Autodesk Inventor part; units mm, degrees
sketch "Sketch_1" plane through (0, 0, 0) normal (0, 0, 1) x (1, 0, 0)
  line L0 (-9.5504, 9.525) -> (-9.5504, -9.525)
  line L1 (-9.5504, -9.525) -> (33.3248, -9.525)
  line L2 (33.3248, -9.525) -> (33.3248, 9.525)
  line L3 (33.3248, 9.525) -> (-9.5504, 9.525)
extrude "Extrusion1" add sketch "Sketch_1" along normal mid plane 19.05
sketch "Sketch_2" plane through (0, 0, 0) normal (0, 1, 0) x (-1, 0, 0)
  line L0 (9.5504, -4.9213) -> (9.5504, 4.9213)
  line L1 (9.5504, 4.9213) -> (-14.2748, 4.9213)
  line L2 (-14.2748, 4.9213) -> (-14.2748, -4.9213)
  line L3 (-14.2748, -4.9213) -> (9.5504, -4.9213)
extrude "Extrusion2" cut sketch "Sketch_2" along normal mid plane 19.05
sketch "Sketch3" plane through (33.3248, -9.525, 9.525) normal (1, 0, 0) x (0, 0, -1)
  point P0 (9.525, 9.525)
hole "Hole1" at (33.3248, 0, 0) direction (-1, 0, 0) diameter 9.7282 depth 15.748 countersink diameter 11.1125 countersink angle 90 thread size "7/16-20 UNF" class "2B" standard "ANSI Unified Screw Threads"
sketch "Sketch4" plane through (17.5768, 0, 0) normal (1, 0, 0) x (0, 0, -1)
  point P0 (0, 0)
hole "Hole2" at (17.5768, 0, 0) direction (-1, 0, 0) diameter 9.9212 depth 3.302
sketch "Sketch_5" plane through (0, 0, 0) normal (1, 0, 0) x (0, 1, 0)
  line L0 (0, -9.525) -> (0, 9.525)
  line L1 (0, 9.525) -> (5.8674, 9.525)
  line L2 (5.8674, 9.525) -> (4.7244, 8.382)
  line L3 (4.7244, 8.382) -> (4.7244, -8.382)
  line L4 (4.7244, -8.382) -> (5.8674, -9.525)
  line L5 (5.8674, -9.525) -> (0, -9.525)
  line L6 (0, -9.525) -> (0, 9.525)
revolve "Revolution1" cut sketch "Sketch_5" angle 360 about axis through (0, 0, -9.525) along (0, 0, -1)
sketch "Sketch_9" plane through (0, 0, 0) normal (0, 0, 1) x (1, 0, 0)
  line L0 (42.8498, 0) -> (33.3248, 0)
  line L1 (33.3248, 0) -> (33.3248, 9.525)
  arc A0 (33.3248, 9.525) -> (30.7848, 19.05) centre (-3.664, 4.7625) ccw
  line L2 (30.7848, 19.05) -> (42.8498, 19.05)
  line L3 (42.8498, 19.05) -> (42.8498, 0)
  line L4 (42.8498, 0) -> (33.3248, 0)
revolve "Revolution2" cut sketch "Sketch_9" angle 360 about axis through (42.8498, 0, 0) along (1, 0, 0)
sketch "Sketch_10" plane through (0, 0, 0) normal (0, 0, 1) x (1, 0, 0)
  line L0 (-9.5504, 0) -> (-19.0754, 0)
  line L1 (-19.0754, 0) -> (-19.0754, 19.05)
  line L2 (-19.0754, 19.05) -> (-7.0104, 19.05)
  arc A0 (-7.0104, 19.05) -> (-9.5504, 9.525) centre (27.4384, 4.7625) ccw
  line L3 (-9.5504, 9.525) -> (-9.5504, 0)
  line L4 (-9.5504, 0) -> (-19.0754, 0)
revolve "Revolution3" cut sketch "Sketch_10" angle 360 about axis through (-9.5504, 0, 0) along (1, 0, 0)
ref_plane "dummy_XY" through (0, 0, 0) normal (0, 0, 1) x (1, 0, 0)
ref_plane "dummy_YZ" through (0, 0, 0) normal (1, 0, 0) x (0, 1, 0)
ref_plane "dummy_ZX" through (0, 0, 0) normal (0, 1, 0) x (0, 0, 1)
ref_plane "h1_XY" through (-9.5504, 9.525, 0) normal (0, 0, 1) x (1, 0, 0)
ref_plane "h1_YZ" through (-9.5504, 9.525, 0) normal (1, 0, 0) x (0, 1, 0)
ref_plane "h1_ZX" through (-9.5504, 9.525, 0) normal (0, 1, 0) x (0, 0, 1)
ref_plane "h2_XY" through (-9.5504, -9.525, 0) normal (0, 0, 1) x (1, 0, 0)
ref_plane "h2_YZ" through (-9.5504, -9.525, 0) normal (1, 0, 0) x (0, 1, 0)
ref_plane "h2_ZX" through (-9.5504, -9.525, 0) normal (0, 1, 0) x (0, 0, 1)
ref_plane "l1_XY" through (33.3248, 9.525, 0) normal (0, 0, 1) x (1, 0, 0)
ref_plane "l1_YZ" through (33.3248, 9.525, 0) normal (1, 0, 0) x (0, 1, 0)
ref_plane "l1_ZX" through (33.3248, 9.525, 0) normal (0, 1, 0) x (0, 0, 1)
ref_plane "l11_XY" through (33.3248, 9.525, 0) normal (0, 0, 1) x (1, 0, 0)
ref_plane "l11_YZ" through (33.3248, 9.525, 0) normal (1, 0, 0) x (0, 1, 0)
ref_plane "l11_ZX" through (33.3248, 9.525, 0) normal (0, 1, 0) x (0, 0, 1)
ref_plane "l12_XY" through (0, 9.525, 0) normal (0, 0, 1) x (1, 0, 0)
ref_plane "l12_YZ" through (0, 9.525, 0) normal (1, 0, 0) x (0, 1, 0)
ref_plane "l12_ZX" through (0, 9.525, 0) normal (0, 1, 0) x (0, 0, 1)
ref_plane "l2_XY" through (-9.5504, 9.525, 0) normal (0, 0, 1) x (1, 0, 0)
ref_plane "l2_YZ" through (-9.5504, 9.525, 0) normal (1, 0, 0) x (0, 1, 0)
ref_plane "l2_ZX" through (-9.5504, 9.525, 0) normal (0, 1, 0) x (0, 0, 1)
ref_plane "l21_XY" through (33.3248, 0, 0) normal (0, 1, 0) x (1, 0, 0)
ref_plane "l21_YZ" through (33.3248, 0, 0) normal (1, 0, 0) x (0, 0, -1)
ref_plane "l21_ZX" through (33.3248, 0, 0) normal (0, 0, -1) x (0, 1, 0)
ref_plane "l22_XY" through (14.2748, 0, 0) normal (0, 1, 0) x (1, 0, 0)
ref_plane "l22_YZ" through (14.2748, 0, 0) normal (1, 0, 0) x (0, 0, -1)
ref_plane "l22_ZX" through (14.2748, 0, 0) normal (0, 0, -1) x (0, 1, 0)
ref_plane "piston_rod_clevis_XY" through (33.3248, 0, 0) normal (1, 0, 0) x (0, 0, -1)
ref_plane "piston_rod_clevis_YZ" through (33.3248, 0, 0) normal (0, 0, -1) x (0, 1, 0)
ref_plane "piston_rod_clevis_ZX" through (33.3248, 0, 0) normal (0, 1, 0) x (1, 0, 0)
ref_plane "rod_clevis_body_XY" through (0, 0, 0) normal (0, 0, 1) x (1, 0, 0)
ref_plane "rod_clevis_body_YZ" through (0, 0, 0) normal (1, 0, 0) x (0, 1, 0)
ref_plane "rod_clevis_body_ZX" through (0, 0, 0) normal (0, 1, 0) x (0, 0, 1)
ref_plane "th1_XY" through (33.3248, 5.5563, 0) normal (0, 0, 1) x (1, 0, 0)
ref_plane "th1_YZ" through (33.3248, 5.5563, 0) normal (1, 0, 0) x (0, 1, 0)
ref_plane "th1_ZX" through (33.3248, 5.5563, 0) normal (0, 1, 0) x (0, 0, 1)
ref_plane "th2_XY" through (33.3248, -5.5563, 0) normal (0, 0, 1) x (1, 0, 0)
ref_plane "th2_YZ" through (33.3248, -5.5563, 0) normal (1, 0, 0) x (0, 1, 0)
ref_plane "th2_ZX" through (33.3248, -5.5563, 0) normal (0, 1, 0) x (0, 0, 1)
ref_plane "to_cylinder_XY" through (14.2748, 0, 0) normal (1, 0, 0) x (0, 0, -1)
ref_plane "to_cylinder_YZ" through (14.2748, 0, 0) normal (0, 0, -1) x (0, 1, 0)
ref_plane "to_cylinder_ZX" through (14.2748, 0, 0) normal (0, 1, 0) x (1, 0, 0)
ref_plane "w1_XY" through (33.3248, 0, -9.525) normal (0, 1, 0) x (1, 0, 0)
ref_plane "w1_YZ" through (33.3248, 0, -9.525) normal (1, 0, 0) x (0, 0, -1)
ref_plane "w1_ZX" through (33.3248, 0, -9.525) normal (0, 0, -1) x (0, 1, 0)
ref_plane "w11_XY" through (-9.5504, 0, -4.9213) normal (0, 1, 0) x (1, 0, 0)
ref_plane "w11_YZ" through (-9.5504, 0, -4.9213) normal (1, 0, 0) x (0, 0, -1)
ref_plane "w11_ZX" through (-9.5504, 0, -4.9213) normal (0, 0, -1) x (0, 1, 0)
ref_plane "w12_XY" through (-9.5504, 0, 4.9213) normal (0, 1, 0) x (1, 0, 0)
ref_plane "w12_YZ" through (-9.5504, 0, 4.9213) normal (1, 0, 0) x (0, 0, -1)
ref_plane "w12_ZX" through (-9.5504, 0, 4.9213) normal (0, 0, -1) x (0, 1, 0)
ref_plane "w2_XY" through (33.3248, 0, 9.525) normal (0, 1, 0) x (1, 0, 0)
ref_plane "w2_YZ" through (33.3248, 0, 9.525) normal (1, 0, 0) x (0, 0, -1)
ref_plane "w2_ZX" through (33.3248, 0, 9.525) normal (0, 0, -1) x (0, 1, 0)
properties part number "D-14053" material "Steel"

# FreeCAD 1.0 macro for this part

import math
import FreeCAD as App
import Part
import Sketcher
from FreeCAD import Vector
Q = App.Units.Quantity


def add_polygon(sketch, points):
    """Adds a closed chain of lines whose ends are joined by coincident constraints."""
    first, n = sketch.GeometryCount, len(points)
    for a, b in zip(points, points[1:] + points[:1]):
        sketch.addGeometry(Part.LineSegment(App.Vector(*a, 0), App.Vector(*b, 0)), False)
    for i in range(n):
        sketch.addConstraint(Sketcher.Constraint("Coincident", first + i, 2, first + (i + 1) % n, 1))

doc = App.newDocument("Part")
body = doc.addObject("PartDesign::Body", "Body")

# Sketch on XY plane
sketch1 = doc.addObject("Sketcher::SketchObject", "Sketch")
body.addObject(sketch1)
sketch1.AttachmentSupport = (doc.XY_Plane, [""])
sketch1.MapMode = "FlatFace"
add_polygon(sketch1, [(33.3248, 9.525), (-9.5504, 9.525), (-9.5504, -9.525), (33.3248, -9.525)])  # lines 0-3
sketch1.addConstraint([
    Sketcher.Constraint("Horizontal", 0),
    Sketcher.Constraint("Vertical", 1),
    Sketcher.Constraint("Horizontal", 2),
    Sketcher.Constraint("Vertical", 3),
    Sketcher.Constraint("DistanceY", 1, 2, 1, 1, Q("0.75 in")),
    Sketcher.Constraint("DistanceX", 0, 2, 0, 1, Q("1.688 in")),
    Sketcher.Constraint("DistanceX", 0, 2, -1, 1, Q("0.376 in")),
    Sketcher.Constraint("DistanceY", -1, 1, 0, 2, Q("0.375 in")),
])
pad1 = doc.addObject("PartDesign::Pad", "Pad")
body.addObject(pad1)
pad1.Profile = sketch1
pad1.Length = Q("0.75 in")
pad1.Midplane = True

# Sketch on XZ plane
sketch2 = doc.addObject("Sketcher::SketchObject", "Sketch001")
body.addObject(sketch2)
sketch2.AttachmentSupport = (doc.XZ_Plane, [""])
sketch2.MapMode = "FlatFace"
add_polygon(sketch2, [(14.2748, -4.9213), (-9.5504, -4.9213), (-9.5504, 4.9213), (14.2748, 4.9213)])  # lines 0-3
sketch2.addConstraint([
    Sketcher.Constraint("Horizontal", 0),
    Sketcher.Constraint("Vertical", 1),
    Sketcher.Constraint("Horizontal", 2),
    Sketcher.Constraint("Vertical", 3),
    Sketcher.Constraint("DistanceX", 0, 2, 0, 1, Q("0.938 in")),
    Sketcher.Constraint("DistanceY", 1, 1, 1, 2, Q("0.3875 in")),
    Sketcher.Constraint("DistanceX", 0, 2, -1, 1, Q("0.376 in")),
    Sketcher.Constraint("DistanceY", 0, 2, -1, 1, Q("4.9213 mm")),
])
pocket1 = doc.addObject("PartDesign::Pocket", "Pocket")
body.addObject(pocket1)
pocket1.Profile = sketch2
pocket1.Length = Q("0.75 in")
pocket1.Midplane = True

# Sketch on YZ plane
sketch3 = doc.addObject("Sketcher::SketchObject", "Sketch002")
body.addObject(sketch3)
sketch3.AttachmentSupport = (doc.YZ_Plane, [""])
sketch3.MapMode = "FlatFace"
sketch3.AttachmentOffset = App.Placement(Vector(0, 0, 1.312 * 25.4), App.Rotation())
sketch3.addGeometry(Part.Circle(Vector(0, 0, 0), Vector(0, 0, 1), 4.8641), False)
sketch3.addConstraint([
    Sketcher.Constraint("Coincident", 0, 3, -1, 1),
    Sketcher.Constraint("Diameter", 0, Q("0.383 in")),
])
doc.recompute()
hole = doc.addObject("PartDesign::Hole", "Hole")
body.addObject(hole)
hole.Profile = sketch3
hole.ThreadType = "None"
hole.Diameter = Q("0.383 in")
hole.DepthType = "Dimension"
hole.Depth = Q("0.62 in")
hole.DrillPoint = "Flat"
hole.HoleCutType = "Countersink"
hole.HoleCutDiameter = Q("0.4375 in")
hole.HoleCutCountersinkAngle = 90

# Sketch on YZ plane
sketch4 = doc.addObject("Sketcher::SketchObject", "Sketch003")
body.addObject(sketch4)
sketch4.AttachmentSupport = (doc.YZ_Plane, [""])
sketch4.MapMode = "FlatFace"
sketch4.AttachmentOffset = App.Placement(Vector(0, 0, 0.692 * 25.4), App.Rotation())
sketch4.addGeometry(Part.Circle(Vector(0, 0, 0), Vector(0, 0, 1), 4.9606), False)
sketch4.addConstraint([
    Sketcher.Constraint("Coincident", 0, 3, -1, 1),
    Sketcher.Constraint("Diameter", 0, Q("0.3906 in")),
])
doc.recompute()
hole2 = doc.addObject("PartDesign::Hole", "Hole001")
body.addObject(hole2)
hole2.Profile = sketch4
hole2.ThreadType = "None"
hole2.Diameter = Q("0.3905984 in")
hole2.DepthType = "Dimension"
hole2.Depth = Q("0.13 in")
hole2.DrillPoint = "Flat"

# Sketch on YZ plane
sketch5 = doc.addObject("Sketcher::SketchObject", "Sketch004")
body.addObject(sketch5)
sketch5.AttachmentSupport = (doc.YZ_Plane, [""])
sketch5.MapMode = "FlatFace"
add_polygon(sketch5, [(0, 9.525), (0, -9.525), (5.8674, -9.525), (4.7244, -8.382), (4.7244, 8.382), (5.8674, 9.525)])  # lines 0-5
sketch5.addConstraint([
    Sketcher.Constraint("Vertical", 0),
    Sketcher.Constraint("Horizontal", 1),
    Sketcher.Constraint("Vertical", 3),
    Sketcher.Constraint("Horizontal", 5),
    Sketcher.Constraint("Symmetric", 0, 2, 5, 2, -1, 1),
    Sketcher.Constraint("Perpendicular", 2, 4),
    Sketcher.Constraint("Vertical", 1, 2, 4, 2),
    Sketcher.Constraint("Equal", 2, 4),
    Sketcher.Constraint("DistanceY", 0, 2, 0, 1, Q("0.75 in")),
    Sketcher.Constraint("DistanceY", 3, 1, 3, 2, Q("0.66 in")),
    Sketcher.Constraint("DistanceX", 1, 1, 1, 2, Q("0.231 in")),
])
groove = doc.addObject("PartDesign::Groove", "Groove")
body.addObject(groove)
groove.Profile = sketch5
groove.ReferenceAxis = (sketch5, ["V_Axis"])
groove.Angle = 360

# Sketch on XY plane
sketch6 = doc.addObject("Sketcher::SketchObject", "Sketch005")
body.addObject(sketch6)
sketch6.AttachmentSupport = (doc.XY_Plane, [""])
sketch6.MapMode = "FlatFace"
sketch6.addGeometry([
    Part.LineSegment(Vector(33.3248, 0, 0), Vector(42.8498, 0, 0)),  # 0
    Part.LineSegment(Vector(42.8498, 0, 0), Vector(42.8498, 19.05, 0)),  # 1
    Part.LineSegment(Vector(42.8498, 19.05, 0), Vector(30.7848, 19.05, 0)),  # 2
    Part.ArcOfCircle(Part.Circle(Vector(-3.664, 4.7625, 0), Vector(0, 0, 1), 37.294138), math.radians(7.336764), math.radians(22.526031)),  # 3
    Part.LineSegment(Vector(33.3248, 9.525, 0), Vector(33.3248, 0, 0)),  # 4
], False)
sketch6.addConstraint([
    Sketcher.Constraint("Coincident", 0, 2, 1, 1),
    Sketcher.Constraint("Coincident", 1, 2, 2, 1),
    Sketcher.Constraint("Coincident", 2, 2, 3, 2),
    Sketcher.Constraint("Coincident", 3, 1, 4, 1),
    Sketcher.Constraint("Coincident", 4, 2, 0, 1),
    Sketcher.Constraint("Horizontal", 0),
    Sketcher.Constraint("Vertical", 1),
    Sketcher.Constraint("Horizontal", 2),
    Sketcher.Constraint("Vertical", 4),
    Sketcher.Constraint("PointOnObject", 0, 2, -1),
    Sketcher.Constraint("Equal", 0, 4),
    Sketcher.Constraint("DistanceY", 1, 1, 1, 2, Q("0.75 in")),
    Sketcher.Constraint("DistanceX", 2, 2, 3, 1, Q("0.1 in")),
    Sketcher.Constraint("DistanceX", 0, 1, 0, 2, Q("0.375 in")),
    Sketcher.Constraint("Radius", 3, Q("37.2941 mm")),
    Sketcher.Constraint("DistanceX", -1, 1, 0, 2, Q("1.687 in")),
])
groove2 = doc.addObject("PartDesign::Groove", "Groove001")
body.addObject(groove2)
groove2.Profile = sketch6
groove2.ReferenceAxis = (sketch6, ["H_Axis"])
groove2.Angle = 360

# Sketch on XY plane
sketch7 = doc.addObject("Sketcher::SketchObject", "Sketch006")
body.addObject(sketch7)
sketch7.AttachmentSupport = (doc.XY_Plane, [""])
sketch7.MapMode = "FlatFace"
sketch7.addGeometry([
    Part.LineSegment(Vector(-19.0754, 0, 0), Vector(-9.5504, 0, 0)),  # 0
    Part.LineSegment(Vector(-9.5504, 0, 0), Vector(-9.5504, 9.525, 0)),  # 1
    Part.ArcOfCircle(Part.Circle(Vector(27.4384, 4.7625, 0), Vector(0, 0, 1), 37.294135), math.radians(157.473969), math.radians(172.663236)),  # 2
    Part.LineSegment(Vector(-7.0104, 19.05, 0), Vector(-19.0754, 19.05, 0)),  # 3
    Part.LineSegment(Vector(-19.0754, 19.05, 0), Vector(-19.0754, 0, 0)),  # 4
], False)
sketch7.addConstraint([
    Sketcher.Constraint("Coincident", 0, 2, 1, 1),
    Sketcher.Constraint("Coincident", 1, 2, 2, 2),
    Sketcher.Constraint("Coincident", 2, 1, 3, 1),
    Sketcher.Constraint("Coincident", 3, 2, 4, 1),
    Sketcher.Constraint("Coincident", 4, 2, 0, 1),
    Sketcher.Constraint("Horizontal", 0),
    Sketcher.Constraint("Vertical", 1),
    Sketcher.Constraint("Horizontal", 3),
    Sketcher.Constraint("Vertical", 4),
    Sketcher.Constraint("PointOnObject", 0, 2, -1),
    Sketcher.Constraint("Equal", 0, 1),
    Sketcher.Constraint("DistanceY", 4, 2, 4, 1, Q("0.75 in")),
    Sketcher.Constraint("DistanceX", 1, 2, 2, 1, Q("0.1 in")),
    Sketcher.Constraint("DistanceX", 0, 1, 0, 2, Q("0.375 in")),
    Sketcher.Constraint("Radius", 2, Q("37.2941 mm")),
    Sketcher.Constraint("DistanceX", 0, 2, -1, 1, Q("0.376 in")),
])
groove3 = doc.addObject("PartDesign::Groove", "Groove002")
body.addObject(groove3)
groove3.Profile = sketch7
groove3.ReferenceAxis = (sketch7, ["H_Axis"])
groove3.Angle = 360

doc.recompute()
